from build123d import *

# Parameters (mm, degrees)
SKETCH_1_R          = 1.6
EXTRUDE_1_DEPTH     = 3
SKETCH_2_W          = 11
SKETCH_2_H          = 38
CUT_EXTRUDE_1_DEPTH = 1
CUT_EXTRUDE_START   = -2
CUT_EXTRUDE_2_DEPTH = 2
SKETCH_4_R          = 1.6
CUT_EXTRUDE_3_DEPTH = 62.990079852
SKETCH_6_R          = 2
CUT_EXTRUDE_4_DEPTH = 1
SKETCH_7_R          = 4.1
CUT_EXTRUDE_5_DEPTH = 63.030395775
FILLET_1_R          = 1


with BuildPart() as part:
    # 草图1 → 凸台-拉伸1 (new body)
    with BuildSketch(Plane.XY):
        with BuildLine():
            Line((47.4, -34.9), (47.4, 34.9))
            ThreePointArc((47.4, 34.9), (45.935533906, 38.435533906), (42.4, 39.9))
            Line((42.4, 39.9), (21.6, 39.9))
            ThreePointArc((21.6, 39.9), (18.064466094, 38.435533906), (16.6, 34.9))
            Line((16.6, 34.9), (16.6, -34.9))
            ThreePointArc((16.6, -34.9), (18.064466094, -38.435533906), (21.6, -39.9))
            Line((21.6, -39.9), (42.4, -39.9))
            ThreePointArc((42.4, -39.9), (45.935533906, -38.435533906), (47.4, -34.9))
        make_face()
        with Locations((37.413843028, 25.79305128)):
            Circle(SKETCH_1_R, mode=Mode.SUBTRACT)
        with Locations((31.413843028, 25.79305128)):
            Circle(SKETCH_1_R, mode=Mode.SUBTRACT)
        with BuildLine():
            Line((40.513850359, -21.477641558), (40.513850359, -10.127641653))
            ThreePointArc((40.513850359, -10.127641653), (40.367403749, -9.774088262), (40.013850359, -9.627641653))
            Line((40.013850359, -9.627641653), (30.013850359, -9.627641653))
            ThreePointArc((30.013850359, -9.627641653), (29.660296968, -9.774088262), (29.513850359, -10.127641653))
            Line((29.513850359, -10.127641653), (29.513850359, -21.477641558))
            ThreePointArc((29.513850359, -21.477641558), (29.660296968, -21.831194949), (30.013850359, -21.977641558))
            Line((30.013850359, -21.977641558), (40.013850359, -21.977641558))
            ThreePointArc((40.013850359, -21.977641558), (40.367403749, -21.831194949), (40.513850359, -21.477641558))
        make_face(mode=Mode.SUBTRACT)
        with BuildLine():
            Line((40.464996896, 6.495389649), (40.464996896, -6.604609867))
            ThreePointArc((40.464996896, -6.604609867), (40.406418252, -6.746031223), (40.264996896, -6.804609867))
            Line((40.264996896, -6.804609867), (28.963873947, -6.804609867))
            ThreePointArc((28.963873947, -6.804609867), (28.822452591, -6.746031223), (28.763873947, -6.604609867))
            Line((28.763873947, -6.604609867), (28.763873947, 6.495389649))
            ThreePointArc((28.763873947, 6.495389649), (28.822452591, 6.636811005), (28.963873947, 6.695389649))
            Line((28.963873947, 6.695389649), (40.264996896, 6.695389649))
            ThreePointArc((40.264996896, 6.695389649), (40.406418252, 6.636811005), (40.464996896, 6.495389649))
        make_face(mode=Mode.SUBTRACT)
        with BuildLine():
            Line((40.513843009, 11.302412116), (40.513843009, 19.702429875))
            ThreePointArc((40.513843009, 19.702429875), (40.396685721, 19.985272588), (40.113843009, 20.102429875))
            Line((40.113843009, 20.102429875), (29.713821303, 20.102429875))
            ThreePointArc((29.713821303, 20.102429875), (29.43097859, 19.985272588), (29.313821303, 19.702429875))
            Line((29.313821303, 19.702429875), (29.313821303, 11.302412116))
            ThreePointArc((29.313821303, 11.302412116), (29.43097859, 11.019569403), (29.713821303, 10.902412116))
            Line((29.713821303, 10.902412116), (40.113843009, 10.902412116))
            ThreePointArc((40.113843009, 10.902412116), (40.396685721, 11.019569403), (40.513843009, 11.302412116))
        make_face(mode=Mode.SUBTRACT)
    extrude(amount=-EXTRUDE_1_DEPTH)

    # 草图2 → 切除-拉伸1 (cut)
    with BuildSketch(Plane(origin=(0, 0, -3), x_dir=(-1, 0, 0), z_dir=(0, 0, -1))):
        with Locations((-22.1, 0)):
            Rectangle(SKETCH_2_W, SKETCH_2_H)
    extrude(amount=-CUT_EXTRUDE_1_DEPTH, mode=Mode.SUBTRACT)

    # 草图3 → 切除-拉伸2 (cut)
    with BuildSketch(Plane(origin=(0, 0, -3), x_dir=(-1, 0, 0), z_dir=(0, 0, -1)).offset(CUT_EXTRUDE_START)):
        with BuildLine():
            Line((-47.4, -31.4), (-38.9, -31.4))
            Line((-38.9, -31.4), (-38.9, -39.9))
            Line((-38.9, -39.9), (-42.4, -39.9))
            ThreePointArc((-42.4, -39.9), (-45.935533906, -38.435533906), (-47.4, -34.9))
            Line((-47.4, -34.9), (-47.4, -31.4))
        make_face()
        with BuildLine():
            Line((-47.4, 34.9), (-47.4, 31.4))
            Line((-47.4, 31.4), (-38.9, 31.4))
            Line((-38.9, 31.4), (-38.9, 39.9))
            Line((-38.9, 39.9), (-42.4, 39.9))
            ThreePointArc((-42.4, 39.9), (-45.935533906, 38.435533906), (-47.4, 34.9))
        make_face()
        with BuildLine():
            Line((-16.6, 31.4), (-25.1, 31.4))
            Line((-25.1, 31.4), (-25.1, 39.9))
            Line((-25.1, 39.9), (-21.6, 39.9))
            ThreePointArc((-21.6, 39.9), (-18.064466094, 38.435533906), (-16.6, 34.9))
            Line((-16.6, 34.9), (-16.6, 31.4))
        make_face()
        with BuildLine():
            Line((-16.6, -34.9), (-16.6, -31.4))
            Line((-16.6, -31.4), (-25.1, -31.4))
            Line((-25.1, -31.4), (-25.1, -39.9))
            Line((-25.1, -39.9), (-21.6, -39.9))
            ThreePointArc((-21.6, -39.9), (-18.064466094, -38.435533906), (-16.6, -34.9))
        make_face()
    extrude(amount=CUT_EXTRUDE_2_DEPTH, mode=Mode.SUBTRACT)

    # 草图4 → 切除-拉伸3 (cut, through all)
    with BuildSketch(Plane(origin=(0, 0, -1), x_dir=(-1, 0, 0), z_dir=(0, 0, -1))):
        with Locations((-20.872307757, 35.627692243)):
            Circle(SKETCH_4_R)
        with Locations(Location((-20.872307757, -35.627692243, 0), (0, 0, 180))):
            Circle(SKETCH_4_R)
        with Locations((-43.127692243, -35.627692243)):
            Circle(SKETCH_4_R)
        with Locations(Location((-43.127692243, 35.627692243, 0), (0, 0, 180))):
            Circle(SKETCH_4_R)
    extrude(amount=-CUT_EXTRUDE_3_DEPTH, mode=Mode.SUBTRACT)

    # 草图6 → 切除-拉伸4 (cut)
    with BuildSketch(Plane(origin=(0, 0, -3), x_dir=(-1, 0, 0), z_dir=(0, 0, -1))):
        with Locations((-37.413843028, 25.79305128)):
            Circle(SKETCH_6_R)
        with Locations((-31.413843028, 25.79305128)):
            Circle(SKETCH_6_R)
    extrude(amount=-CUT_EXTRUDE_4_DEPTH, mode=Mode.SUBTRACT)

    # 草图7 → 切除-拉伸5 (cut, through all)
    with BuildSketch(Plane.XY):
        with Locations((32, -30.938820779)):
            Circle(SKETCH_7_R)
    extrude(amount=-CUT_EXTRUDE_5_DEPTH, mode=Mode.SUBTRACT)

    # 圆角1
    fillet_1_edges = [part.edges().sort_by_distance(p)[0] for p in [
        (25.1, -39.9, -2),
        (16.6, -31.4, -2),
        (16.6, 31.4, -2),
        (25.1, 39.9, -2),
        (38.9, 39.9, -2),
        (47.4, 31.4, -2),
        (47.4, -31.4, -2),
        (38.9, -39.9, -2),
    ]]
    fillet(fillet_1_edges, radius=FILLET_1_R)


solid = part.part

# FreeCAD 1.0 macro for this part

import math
import FreeCAD as App
import Part
import Sketcher

V = App.Vector


def edges_at(feature, points):
    """Names of the edges that pass closest to the given points."""
    edges = feature.Shape.Edges
    near = lambda p: min(range(len(edges)), key=lambda i: edges[i].distToShape(Part.Vertex(*p))[0])
    return sorted({f"Edge{near(p) + 1}" for p in points})

doc = App.newDocument("Part")
body = doc.addObject("PartDesign::Body", "Body")

sketch1 = body.newObject("Sketcher::SketchObject", "Sketch")
sketch1.AttachmentSupport = (doc.getObject("XY_Plane"), [""])
sketch1.MapMode = "FlatFace"
sketch1.addGeometry([
    Part.LineSegment(V(47.4, -34.9, 0), V(47.4, 34.9, 0)),
    Part.ArcOfCircle(Part.Circle(V(42.4, 34.9, 0), V(0, 0, 1), 5), math.radians(0), math.radians(90)),
    Part.LineSegment(V(42.4, 39.9, 0), V(21.6, 39.9, 0)),
    Part.ArcOfCircle(Part.Circle(V(21.6, 34.9, 0), V(0, 0, 1), 5), math.radians(90), math.radians(180)),
    Part.LineSegment(V(16.6, 34.9, 0), V(16.6, -34.9, 0)),
    Part.ArcOfCircle(Part.Circle(V(21.6, -34.9, 0), V(0, 0, 1), 5), math.radians(180), math.radians(270)),
    Part.LineSegment(V(21.6, -39.9, 0), V(42.4, -39.9, 0)),
    Part.ArcOfCircle(Part.Circle(V(42.4, -34.9, 0), V(0, 0, 1), 5), math.radians(-90), math.radians(0)),
    Part.ArcOfCircle(Part.Circle(V(40.26, 6.5, 0), V(0, 0, 1), 0.2), math.radians(0), math.radians(90)),
    Part.LineSegment(V(40.46, 6.5, 0), V(40.46, -6.6, 0)),
    Part.ArcOfCircle(Part.Circle(V(40.26, -6.6, 0), V(0, 0, 1), 0.2), math.radians(-90), math.radians(0)),
    Part.LineSegment(V(40.26, -6.8, 0), V(28.96, -6.8, 0)),
    Part.ArcOfCircle(Part.Circle(V(28.96, -6.6, 0), V(0, 0, 1), 0.2), math.radians(-180), math.radians(-90)),
    Part.LineSegment(V(28.76, -6.6, 0), V(28.76, 6.5, 0)),
    Part.ArcOfCircle(Part.Circle(V(28.96, 6.5, 0), V(0, 0, 1), 0.2), math.radians(90), math.radians(180)),
    Part.LineSegment(V(28.96, 6.7, 0), V(40.26, 6.7, 0)),
    Part.LineSegment(V(40.51, -10.13, 0), V(40.51, -21.48, 0)),
    Part.ArcOfCircle(Part.Circle(V(40.01, -21.48, 0), V(0, 0, 1), 0.5), math.radians(-90), math.radians(0)),
    Part.LineSegment(V(40.01, -21.98, 0), V(30.01, -21.98, 0)),
    Part.ArcOfCircle(Part.Circle(V(30.01, -21.48, 0), V(0, 0, 1), 0.5), math.radians(180), math.radians(270)),
    Part.LineSegment(V(29.51, -21.48, 0), V(29.51, -10.13, 0)),
    Part.ArcOfCircle(Part.Circle(V(30.01, -10.13, 0), V(0, 0, 1), 0.5), math.radians(90), math.radians(180)),
    Part.LineSegment(V(30.01, -9.63, 0), V(40.01, -9.63, 0)),
    Part.ArcOfCircle(Part.Circle(V(40.01, -10.13, 0), V(0, 0, 1), 0.5), math.radians(0), math.radians(90)),
    Part.Circle(V(31.41, 25.79, 0), V(0, 0, 1), 1.6),
    Part.LineSegment(V(40.51, 19.7, 0), V(40.51, 11.3, 0)),
    Part.ArcOfCircle(Part.Circle(V(40.11, 11.3, 0), V(0, 0, 1), 0.4), math.radians(-90), math.radians(0)),
    Part.LineSegment(V(40.11, 10.9, 0), V(29.71, 10.9, 0)),
    Part.ArcOfCircle(Part.Circle(V(29.71, 11.3, 0), V(0, 0, 1), 0.4), math.radians(180), math.radians(270)),
    Part.LineSegment(V(29.31, 11.3, 0), V(29.31, 19.7, 0)),
    Part.ArcOfCircle(Part.Circle(V(29.71, 19.7, 0), V(0, 0, 1), 0.4), math.radians(90), math.radians(180)),
    Part.LineSegment(V(29.71, 20.1, 0), V(40.11, 20.1, 0)),
    Part.ArcOfCircle(Part.Circle(V(40.11, 19.7, 0), V(0, 0, 1), 0.4), math.radians(0), math.radians(90)),
    Part.Circle(V(37.41, 25.79, 0), V(0, 0, 1), 1.6),
], False)
sketch1.addConstraint([
    Sketcher.Constraint("Tangent", 0, 2, 1, 1),
    Sketcher.Constraint("Tangent", 1, 2, 2, 1),
    Sketcher.Constraint("Tangent", 2, 2, 3, 1),
    Sketcher.Constraint("Tangent", 3, 2, 4, 1),
    Sketcher.Constraint("Tangent", 4, 2, 5, 1),
    Sketcher.Constraint("Tangent", 5, 2, 6, 1),
    Sketcher.Constraint("Tangent", 6, 2, 7, 1),
    Sketcher.Constraint("Tangent", 7, 2, 0, 1),
    Sketcher.Constraint("Tangent", 8, 1, 9, 1),
    Sketcher.Constraint("Tangent", 9, 2, 10, 2),
    Sketcher.Constraint("Tangent", 10, 1, 11, 1),
    Sketcher.Constraint("Tangent", 11, 2, 12, 2),
    Sketcher.Constraint("Tangent", 12, 1, 13, 1),
    Sketcher.Constraint("Tangent", 13, 2, 14, 2),
    Sketcher.Constraint("Tangent", 14, 1, 15, 1),
    Sketcher.Constraint("Tangent", 15, 2, 8, 2),
    Sketcher.Constraint("Tangent", 16, 2, 17, 2),
    Sketcher.Constraint("Tangent", 17, 1, 18, 1),
    Sketcher.Constraint("Tangent", 18, 2, 19, 2),
    Sketcher.Constraint("Tangent", 19, 1, 20, 1),
    Sketcher.Constraint("Tangent", 20, 2, 21, 2),
    Sketcher.Constraint("Tangent", 21, 1, 22, 1),
    Sketcher.Constraint("Tangent", 22, 2, 23, 2),
    Sketcher.Constraint("Tangent", 23, 1, 16, 1),
    Sketcher.Constraint("Tangent", 25, 2, 26, 2),
    Sketcher.Constraint("Tangent", 26, 1, 27, 1),
    Sketcher.Constraint("Tangent", 27, 2, 28, 2),
    Sketcher.Constraint("Tangent", 28, 1, 29, 1),
    Sketcher.Constraint("Tangent", 29, 2, 30, 2),
    Sketcher.Constraint("Tangent", 30, 1, 31, 1),
    Sketcher.Constraint("Tangent", 31, 2, 32, 2),
    Sketcher.Constraint("Tangent", 32, 1, 25, 1),
    Sketcher.Constraint("Vertical", 0),
    Sketcher.Constraint("Horizontal", 2),
    Sketcher.Constraint("Vertical", 4),
    Sketcher.Constraint("Horizontal", 6),
    Sketcher.Constraint("Vertical", 9),
    Sketcher.Constraint("Horizontal", 11),
    Sketcher.Constraint("Vertical", 13),
    Sketcher.Constraint("Horizontal", 15),
    Sketcher.Constraint("Vertical", 16),
    Sketcher.Constraint("Horizontal", 18),
    Sketcher.Constraint("Vertical", 20),
    Sketcher.Constraint("Horizontal", 22),
    Sketcher.Constraint("Vertical", 25),
    Sketcher.Constraint("Horizontal", 27),
    Sketcher.Constraint("Vertical", 29),
    Sketcher.Constraint("Horizontal", 31),
    Sketcher.Constraint("Equal", 1, 3),
    Sketcher.Constraint("Equal", 3, 5),
    Sketcher.Constraint("Equal", 5, 7),
    Sketcher.Constraint("Equal", 8, 10),
    Sketcher.Constraint("Equal", 10, 12),
    Sketcher.Constraint("Equal", 12, 14),
    Sketcher.Constraint("Equal", 17, 19),
    Sketcher.Constraint("Equal", 19, 21),
    Sketcher.Constraint("Equal", 21, 23),
    Sketcher.Constraint("Equal", 26, 28),
    Sketcher.Constraint("Equal", 28, 30),
    Sketcher.Constraint("Equal", 30, 32),
    Sketcher.Constraint("Equal", 24, 33),
    Sketcher.Constraint("Horizontal", 24, 3, 33, 3),
    Sketcher.Constraint("Radius", 1, 5.0),
    Sketcher.Constraint("Diameter", 24, 3.2),
    Sketcher.Constraint("Radius", 8, 0.2),
    Sketcher.Constraint("Radius", 17, 0.5),
    Sketcher.Constraint("Radius", 26, 0.4),
    Sketcher.Constraint("DistanceX", 18, 2, 18, 1, 10.0),
    Sketcher.Constraint("DistanceX", 2, 2, 2, 1, 20.8),
    Sketcher.Constraint("DistanceY", 0, 1, 0, 2, 69.8),
    Sketcher.Constraint("DistanceY", 9, 2, 9, 1, 13.1),
    Sketcher.Constraint("DistanceX", 24, 3, 33, 3, 6.0),
    Sketcher.Constraint("DistanceY", 16, 2, 16, 1, 11.35),
    Sketcher.Constraint("DistanceX", -1, 1, 1, 3, 42.4),
    Sketcher.Constraint("DistanceY", -1, 1, 1, 3, 34.9),
    Sketcher.Constraint("DistanceX", 24, 3, 26, 3, 8.7),
    Sketcher.Constraint("DistanceX", 27, 2, 27, 1, 10.400022),
    Sketcher.Constraint("DistanceX", 11, 2, 11, 1, 11.301123),
    Sketcher.Constraint("DistanceY", 25, 2, 25, 1, 8.400018),
    Sketcher.Constraint("DistanceY", -1, 1, 8, 3, 6.49539),
    Sketcher.Constraint("DistanceX", -1, 1, 17, 3, 40.01385),
    Sketcher.Constraint("DistanceY", 17, 3, -1, 1, 21.477642),
    Sketcher.Constraint("DistanceY", -1, 1, 24, 3, 25.793051),
    Sketcher.Constraint("DistanceX", -1, 1, 28, 3, 29.713821),
    Sketcher.Constraint("DistanceY", -1, 1, 30, 3, 19.70243),
    Sketcher.Constraint("DistanceX", 14, 3, 24, 3, 2.449969),
])
pad1 = body.newObject("PartDesign::Pad", "Pad")
pad1.Profile = sketch1
pad1.Length = 3
pad1.Reversed = True

sketch2 = body.newObject("Sketcher::SketchObject", "Sketch001")
sketch2.AttachmentSupport = (doc.getObject("XY_Plane"), [""])
sketch2.MapMode = "FlatFace"
sketch2.AttachmentOffset = App.Placement(V(0, 0, -3), App.Rotation())
sketch2.addGeometry([
    Part.LineSegment(V(28, 19, 0), V(28, -19, 0)),
    Part.LineSegment(V(28, -19, 0), V(17, -19, 0)),
    Part.LineSegment(V(17, -19, 0), V(17, 19, 0)),
    Part.LineSegment(V(17, 19, 0), V(28, 19, 0)),
], False)
sketch2.addConstraint([
    Sketcher.Constraint("Coincident", 0, 2, 1, 1),
    Sketcher.Constraint("Coincident", 1, 2, 2, 1),
    Sketcher.Constraint("Coincident", 2, 2, 3, 1),
    Sketcher.Constraint("Coincident", 3, 2, 0, 1),
    Sketcher.Constraint("Vertical", 0),
    Sketcher.Constraint("Horizontal", 1),
    Sketcher.Constraint("Vertical", 2),
    Sketcher.Constraint("Horizontal", 3),
    Sketcher.Constraint("DistanceX", 1, 2, 1, 1, 11.0),
    Sketcher.Constraint("DistanceY", 0, 2, 0, 1, 38.0),
    Sketcher.Constraint("DistanceY", 0, 2, -1, 1, 19.0),
    Sketcher.Constraint("DistanceX", -1, 1, 0, 2, 27.6),
])
pocket1 = body.newObject("PartDesign::Pocket", "Pocket")
pocket1.Profile = sketch2
pocket1.Length = 1
pocket1.Reversed = True

sketch3 = body.newObject("Sketcher::SketchObject", "Sketch002")
sketch3.AttachmentSupport = (doc.getObject("XY_Plane"), [""])
sketch3.MapMode = "FlatFace"
sketch3.AttachmentOffset = App.Placement(V(0, 0, -1), App.Rotation())
sketch3.addGeometry([
    Part.LineSegment(V(38.9, -31.4, 0), V(47.4, -31.4, 0)),
    Part.LineSegment(V(47.4, -31.4, 0), V(47.4, -34.9, 0)),
    Part.ArcOfCircle(Part.Circle(V(42.4, -34.9, 0), V(0, 0, 1), 5), math.radians(-90), math.radians(0)),
    Part.LineSegment(V(42.4, -39.9, 0), V(38.9, -39.9, 0)),
    Part.LineSegment(V(38.9, -39.9, 0), V(38.9, -31.4, 0)),
    Part.LineSegment(V(47.4, 34.9, 0), V(47.4, 31.4, 0)),
    Part.LineSegment(V(47.4, 31.4, 0), V(38.9, 31.4, 0)),
    Part.LineSegment(V(38.9, 31.4, 0), V(38.9, 39.9, 0)),
    Part.LineSegment(V(38.9, 39.9, 0), V(42.4, 39.9, 0)),
    Part.ArcOfCircle(Part.Circle(V(42.4, 34.9, 0), V(0, 0, 1), 5), math.radians(0), math.radians(90)),
    Part.LineSegment(V(25.1, 31.4, 0), V(16.6, 31.4, 0)),
    Part.LineSegment(V(16.6, 31.4, 0), V(16.6, 34.9, 0)),
    Part.ArcOfCircle(Part.Circle(V(21.6, 34.9, 0), V(0, 0, 1), 5), math.radians(90), math.radians(180)),
    Part.LineSegment(V(21.6, 39.9, 0), V(25.1, 39.9, 0)),
    Part.LineSegment(V(25.1, 39.9, 0), V(25.1, 31.4, 0)),
    Part.LineSegment(V(16.6, -34.9, 0), V(16.6, -31.4, 0)),
    Part.LineSegment(V(16.6, -31.4, 0), V(25.1, -31.4, 0)),
    Part.LineSegment(V(25.1, -31.4, 0), V(25.1, -39.9, 0)),
    Part.LineSegment(V(25.1, -39.9, 0), V(21.6, -39.9, 0)),
    Part.ArcOfCircle(Part.Circle(V(21.6, -34.9, 0), V(0, 0, 1), 5), math.radians(180), math.radians(270)),
], False)
sketch3.addConstraint([
    Sketcher.Constraint("Coincident", 0, 2, 1, 1),
    Sketcher.Constraint("Tangent", 1, 2, 2, 2),
    Sketcher.Constraint("Tangent", 2, 1, 3, 1),
    Sketcher.Constraint("Coincident", 3, 2, 4, 1),
    Sketcher.Constraint("Coincident", 4, 2, 0, 1),
    Sketcher.Constraint("Coincident", 5, 2, 6, 1),
    Sketcher.Constraint("Coincident", 6, 2, 7, 1),
    Sketcher.Constraint("Coincident", 7, 2, 8, 1),
    Sketcher.Constraint("Tangent", 8, 2, 9, 2),
    Sketcher.Constraint("Tangent", 9, 1, 5, 1),
    Sketcher.Constraint("Coincident", 10, 2, 11, 1),
    Sketcher.Constraint("Tangent", 11, 2, 12, 2),
    Sketcher.Constraint("Tangent", 12, 1, 13, 1),
    Sketcher.Constraint("Coincident", 13, 2, 14, 1),
    Sketcher.Constraint("Coincident", 14, 2, 10, 1),
    Sketcher.Constraint("Coincident", 15, 2, 16, 1),
    Sketcher.Constraint("Coincident", 16, 2, 17, 1),
    Sketcher.Constraint("Coincident", 17, 2, 18, 1),
    Sketcher.Constraint("Tangent", 18, 2, 19, 2),
    Sketcher.Constraint("Tangent", 19, 1, 15, 1),
    Sketcher.Constraint("Horizontal", 0),
    Sketcher.Constraint("Vertical", 1),
    Sketcher.Constraint("Horizontal", 3),
    Sketcher.Constraint("Vertical", 4),
    Sketcher.Constraint("Vertical", 5),
    Sketcher.Constraint("Horizontal", 6),
    Sketcher.Constraint("Vertical", 7),
    Sketcher.Constraint("Horizontal", 8),
    Sketcher.Constraint("Horizontal", 10),
    Sketcher.Constraint("Vertical", 11),
    Sketcher.Constraint("Horizontal", 13),
    Sketcher.Constraint("Vertical", 14),
    Sketcher.Constraint("Vertical", 15),
    Sketcher.Constraint("Horizontal", 16),
    Sketcher.Constraint("Vertical", 17),
    Sketcher.Constraint("Horizontal", 18),
    Sketcher.Constraint("Equal", 2, 9),
    Sketcher.Constraint("Equal", 9, 12),
    Sketcher.Constraint("Equal", 12, 19),
    Sketcher.Constraint("Symmetric", 2, 3, 9, 3, -1),
    Sketcher.Constraint("Symmetric", 12, 3, 19, 3, -1),
    Sketcher.Constraint("Symmetric", 4, 2, 6, 2, -1),
    Sketcher.Constraint("Symmetric", 14, 2, 16, 2, -1),
    Sketcher.Constraint("Horizontal", 9, 3, 12, 3),
    Sketcher.Constraint("Horizontal", 6, 2, 10, 2),
    Sketcher.Constraint("Equal", 6, 10),
    Sketcher.Constraint("Equal", 18, 1),
    Sketcher.Constraint("Radius", 2, 5.0),
    Sketcher.Constraint("DistanceX", 0, 1, 0, 2, 8.5),
    Sketcher.Constraint("DistanceX", -1, 1, 2, 3, 42.4),
    Sketcher.Constraint("DistanceY", 2, 3, -1, 1, 34.9),
    Sketcher.Constraint("DistanceX", -1, 1, 12, 3, 21.6),
])
pocket2 = body.newObject("PartDesign::Pocket", "Pocket001")
pocket2.Profile = sketch3
pocket2.Length = 2

sketch4 = body.newObject("Sketcher::SketchObject", "Sketch003")
sketch4.AttachmentSupport = (doc.getObject("XY_Plane"), [""])
sketch4.MapMode = "FlatFace"
sketch4.AttachmentOffset = App.Placement(V(0, 0, -1), App.Rotation())
sketch4.addGeometry([
    Part.Circle(V(20.9, 35.6, 0), V(0, 0, 1), 1.6),
    Part.Circle(V(20.9, -35.6, 0), V(0, 0, 1), 1.6),
    Part.Circle(V(43.1, -35.6, 0), V(0, 0, 1), 1.6),
    Part.Circle(V(43.1, 35.6, 0), V(0, 0, 1), 1.6),
], False)
sketch4.addConstraint([
    Sketcher.Constraint("Equal", 0, 1),
    Sketcher.Constraint("Equal", 1, 2),
    Sketcher.Constraint("Equal", 2, 3),
    Sketcher.Constraint("Symmetric", 0, 3, 1, 3, -1),
    Sketcher.Constraint("Symmetric", 2, 3, 3, 3, -1),
    Sketcher.Constraint("Horizontal", 1, 3, 2, 3),
    Sketcher.Constraint("Diameter", 0, 3.2),
    Sketcher.Constraint("DistanceX", -1, 1, 0, 3, 20.872308),
    Sketcher.Constraint("DistanceY", -1, 1, 0, 3, 35.627692),
    Sketcher.Constraint("DistanceX", -1, 1, 2, 3, 43.127692),
])
pocket3 = body.newObject("PartDesign::Pocket", "Pocket002")
pocket3.Profile = sketch4
pocket3.Type = "ThroughAll"
pocket3.Reversed = True

sketch5 = body.newObject("Sketcher::SketchObject", "Sketch004")
sketch5.AttachmentSupport = (doc.getObject("XY_Plane"), [""])
sketch5.MapMode = "FlatFace"
sketch5.AttachmentOffset = App.Placement(V(0, 0, -3), App.Rotation())
sketch5.addGeometry([
    Part.Circle(V(37.4, 25.8, 0), V(0, 0, 1), 2),
    Part.Circle(V(31.4, 25.8, 0), V(0, 0, 1), 2),
], False)
sketch5.addConstraint([
    Sketcher.Constraint("Equal", 0, 1),
    Sketcher.Constraint("Horizontal", 0, 3, 1, 3),
    Sketcher.Constraint("Diameter", 0, 4.0),
    Sketcher.Constraint("DistanceX", 1, 3, 0, 3, 6.0),
    Sketcher.Constraint("DistanceY", -1, 1, 0, 3, 25.793051),
    Sketcher.Constraint("DistanceX", -1, 1, 0, 3, 37.413843),
])
pocket4 = body.newObject("PartDesign::Pocket", "Pocket003")
pocket4.Profile = sketch5
pocket4.Length = 1
pocket4.Reversed = True

sketch6 = body.newObject("Sketcher::SketchObject", "Sketch005")
sketch6.AttachmentSupport = (doc.getObject("XY_Plane"), [""])
sketch6.MapMode = "FlatFace"
sketch6.addGeometry(Part.Circle(V(32, -30.9, 0), V(0, 0, 1), 4.1), False)
sketch6.addConstraint([
    Sketcher.Constraint("Diameter", 0, 8.2),
    Sketcher.Constraint("DistanceX", -1, 1, 0, 3, 32.0),
    Sketcher.Constraint("DistanceY", 0, 3, -1, 1, 30.938821),
])
pocket5 = body.newObject("PartDesign::Pocket", "Pocket004")
pocket5.Profile = sketch6
pocket5.Type = "ThroughAll"
doc.recompute()

fillet = body.newObject("PartDesign::Fillet", "Fillet")
fillet.Base = (pocket5, edges_at(pocket5, [
    (25.1, -39.9, -2),
    (16.6, -31.4, -2),
    (16.6, 31.4, -2),
    (25.1, 39.9, -2),
    (38.9, 39.9, -2),
    (47.4, 31.4, -2),
    (47.4, -31.4, -2),
    (38.9, -39.9, -2),
]))
fillet.Radius = 1

doc.recompute()
